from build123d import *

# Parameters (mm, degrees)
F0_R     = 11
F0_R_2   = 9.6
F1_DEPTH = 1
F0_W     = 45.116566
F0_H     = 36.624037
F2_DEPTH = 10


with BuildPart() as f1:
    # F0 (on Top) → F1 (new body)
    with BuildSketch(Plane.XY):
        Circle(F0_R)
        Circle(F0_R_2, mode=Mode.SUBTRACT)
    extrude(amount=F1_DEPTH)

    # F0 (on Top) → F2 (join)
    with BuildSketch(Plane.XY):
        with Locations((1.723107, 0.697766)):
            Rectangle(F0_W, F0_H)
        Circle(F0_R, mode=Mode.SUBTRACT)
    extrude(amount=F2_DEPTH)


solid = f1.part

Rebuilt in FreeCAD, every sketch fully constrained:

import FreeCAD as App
import Part
import Sketcher

V = App.Vector

doc = App.newDocument("Part")
body = doc.addObject("PartDesign::Body", "Body")

sketch1 = body.newObject("Sketcher::SketchObject", "Sketch")
sketch1.AttachmentSupport = (doc.getObject("XY_Plane"), [""])
sketch1.MapMode = "FlatFace"
sketch1.addGeometry(Part.Circle(V(0, 0, 0), V(0, 0, 1), 11), False)
sketch1.addGeometry(Part.Circle(V(0, 0, 0), V(0, 0, 1), 10), False)
sketch1.addConstraint(Sketcher.Constraint("Coincident", 0, 3, -1, 1))
sketch1.addConstraint(Sketcher.Constraint("Coincident", 1, 3, -1, 1))
sketch1.addConstraint(Sketcher.Constraint("Diameter", 0, 22.0))
sketch1.addConstraint(Sketcher.Constraint("Diameter", 1, 19.2))
pad1 = body.newObject("PartDesign::Pad", "Pad")
pad1.Profile = sketch1
pad1.Length = 1

sketch2 = body.newObject("Sketcher::SketchObject", "Sketch001")
sketch2.AttachmentSupport = (doc.getObject("XY_Plane"), [""])
sketch2.MapMode = "FlatFace"
sketch2.addGeometry(Part.LineSegment(V(-21, 19, 0), V(-21, -18, 0)), False)
sketch2.addGeometry(Part.LineSegment(V(-21, -18, 0), V(24, -18, 0)), False)
sketch2.addGeometry(Part.LineSegment(V(24, -18, 0), V(24, 19, 0)), False)
sketch2.addGeometry(Part.LineSegment(V(24, 19, 0), V(-21, 19, 0)), False)
sketch2.addGeometry(Part.Circle(V(0, 0, 0), V(0, 0, 1), 11), False)
sketch2.addConstraint(Sketcher.Constraint("Coincident", 0, 2, 1, 1))
sketch2.addConstraint(Sketcher.Constraint("Coincident", 1, 2, 2, 1))
sketch2.addConstraint(Sketcher.Constraint("Coincident", 2, 2, 3, 1))
sketch2.addConstraint(Sketcher.Constraint("Coincident", 3, 2, 0, 1))
sketch2.addConstraint(Sketcher.Constraint("Vertical", 0))
sketch2.addConstraint(Sketcher.Constraint("Horizontal", 1))
sketch2.addConstraint(Sketcher.Constraint("Vertical", 2))
sketch2.addConstraint(Sketcher.Constraint("Horizontal", 3))
sketch2.addConstraint(Sketcher.Constraint("Coincident", 4, 3, -1, 1))
sketch2.addConstraint(Sketcher.Constraint("Diameter", 4, 22.0))
sketch2.addConstraint(Sketcher.Constraint("DistanceX", 1, 1, 1, 2, 45.116566))
sketch2.addConstraint(Sketcher.Constraint("DistanceY", 0, 2, 0, 1, 36.624037))
sketch2.addConstraint(Sketcher.Constraint("DistanceX", -1, 1, 1, 2, 24.28139))
sketch2.addConstraint(Sketcher.Constraint("DistanceY", 0, 2, -1, 1, 17.614252))
pad2 = body.newObject("PartDesign::Pad", "Pad001")
pad2.Profile = sketch2
pad2.Length = 10

doc.recompute()
